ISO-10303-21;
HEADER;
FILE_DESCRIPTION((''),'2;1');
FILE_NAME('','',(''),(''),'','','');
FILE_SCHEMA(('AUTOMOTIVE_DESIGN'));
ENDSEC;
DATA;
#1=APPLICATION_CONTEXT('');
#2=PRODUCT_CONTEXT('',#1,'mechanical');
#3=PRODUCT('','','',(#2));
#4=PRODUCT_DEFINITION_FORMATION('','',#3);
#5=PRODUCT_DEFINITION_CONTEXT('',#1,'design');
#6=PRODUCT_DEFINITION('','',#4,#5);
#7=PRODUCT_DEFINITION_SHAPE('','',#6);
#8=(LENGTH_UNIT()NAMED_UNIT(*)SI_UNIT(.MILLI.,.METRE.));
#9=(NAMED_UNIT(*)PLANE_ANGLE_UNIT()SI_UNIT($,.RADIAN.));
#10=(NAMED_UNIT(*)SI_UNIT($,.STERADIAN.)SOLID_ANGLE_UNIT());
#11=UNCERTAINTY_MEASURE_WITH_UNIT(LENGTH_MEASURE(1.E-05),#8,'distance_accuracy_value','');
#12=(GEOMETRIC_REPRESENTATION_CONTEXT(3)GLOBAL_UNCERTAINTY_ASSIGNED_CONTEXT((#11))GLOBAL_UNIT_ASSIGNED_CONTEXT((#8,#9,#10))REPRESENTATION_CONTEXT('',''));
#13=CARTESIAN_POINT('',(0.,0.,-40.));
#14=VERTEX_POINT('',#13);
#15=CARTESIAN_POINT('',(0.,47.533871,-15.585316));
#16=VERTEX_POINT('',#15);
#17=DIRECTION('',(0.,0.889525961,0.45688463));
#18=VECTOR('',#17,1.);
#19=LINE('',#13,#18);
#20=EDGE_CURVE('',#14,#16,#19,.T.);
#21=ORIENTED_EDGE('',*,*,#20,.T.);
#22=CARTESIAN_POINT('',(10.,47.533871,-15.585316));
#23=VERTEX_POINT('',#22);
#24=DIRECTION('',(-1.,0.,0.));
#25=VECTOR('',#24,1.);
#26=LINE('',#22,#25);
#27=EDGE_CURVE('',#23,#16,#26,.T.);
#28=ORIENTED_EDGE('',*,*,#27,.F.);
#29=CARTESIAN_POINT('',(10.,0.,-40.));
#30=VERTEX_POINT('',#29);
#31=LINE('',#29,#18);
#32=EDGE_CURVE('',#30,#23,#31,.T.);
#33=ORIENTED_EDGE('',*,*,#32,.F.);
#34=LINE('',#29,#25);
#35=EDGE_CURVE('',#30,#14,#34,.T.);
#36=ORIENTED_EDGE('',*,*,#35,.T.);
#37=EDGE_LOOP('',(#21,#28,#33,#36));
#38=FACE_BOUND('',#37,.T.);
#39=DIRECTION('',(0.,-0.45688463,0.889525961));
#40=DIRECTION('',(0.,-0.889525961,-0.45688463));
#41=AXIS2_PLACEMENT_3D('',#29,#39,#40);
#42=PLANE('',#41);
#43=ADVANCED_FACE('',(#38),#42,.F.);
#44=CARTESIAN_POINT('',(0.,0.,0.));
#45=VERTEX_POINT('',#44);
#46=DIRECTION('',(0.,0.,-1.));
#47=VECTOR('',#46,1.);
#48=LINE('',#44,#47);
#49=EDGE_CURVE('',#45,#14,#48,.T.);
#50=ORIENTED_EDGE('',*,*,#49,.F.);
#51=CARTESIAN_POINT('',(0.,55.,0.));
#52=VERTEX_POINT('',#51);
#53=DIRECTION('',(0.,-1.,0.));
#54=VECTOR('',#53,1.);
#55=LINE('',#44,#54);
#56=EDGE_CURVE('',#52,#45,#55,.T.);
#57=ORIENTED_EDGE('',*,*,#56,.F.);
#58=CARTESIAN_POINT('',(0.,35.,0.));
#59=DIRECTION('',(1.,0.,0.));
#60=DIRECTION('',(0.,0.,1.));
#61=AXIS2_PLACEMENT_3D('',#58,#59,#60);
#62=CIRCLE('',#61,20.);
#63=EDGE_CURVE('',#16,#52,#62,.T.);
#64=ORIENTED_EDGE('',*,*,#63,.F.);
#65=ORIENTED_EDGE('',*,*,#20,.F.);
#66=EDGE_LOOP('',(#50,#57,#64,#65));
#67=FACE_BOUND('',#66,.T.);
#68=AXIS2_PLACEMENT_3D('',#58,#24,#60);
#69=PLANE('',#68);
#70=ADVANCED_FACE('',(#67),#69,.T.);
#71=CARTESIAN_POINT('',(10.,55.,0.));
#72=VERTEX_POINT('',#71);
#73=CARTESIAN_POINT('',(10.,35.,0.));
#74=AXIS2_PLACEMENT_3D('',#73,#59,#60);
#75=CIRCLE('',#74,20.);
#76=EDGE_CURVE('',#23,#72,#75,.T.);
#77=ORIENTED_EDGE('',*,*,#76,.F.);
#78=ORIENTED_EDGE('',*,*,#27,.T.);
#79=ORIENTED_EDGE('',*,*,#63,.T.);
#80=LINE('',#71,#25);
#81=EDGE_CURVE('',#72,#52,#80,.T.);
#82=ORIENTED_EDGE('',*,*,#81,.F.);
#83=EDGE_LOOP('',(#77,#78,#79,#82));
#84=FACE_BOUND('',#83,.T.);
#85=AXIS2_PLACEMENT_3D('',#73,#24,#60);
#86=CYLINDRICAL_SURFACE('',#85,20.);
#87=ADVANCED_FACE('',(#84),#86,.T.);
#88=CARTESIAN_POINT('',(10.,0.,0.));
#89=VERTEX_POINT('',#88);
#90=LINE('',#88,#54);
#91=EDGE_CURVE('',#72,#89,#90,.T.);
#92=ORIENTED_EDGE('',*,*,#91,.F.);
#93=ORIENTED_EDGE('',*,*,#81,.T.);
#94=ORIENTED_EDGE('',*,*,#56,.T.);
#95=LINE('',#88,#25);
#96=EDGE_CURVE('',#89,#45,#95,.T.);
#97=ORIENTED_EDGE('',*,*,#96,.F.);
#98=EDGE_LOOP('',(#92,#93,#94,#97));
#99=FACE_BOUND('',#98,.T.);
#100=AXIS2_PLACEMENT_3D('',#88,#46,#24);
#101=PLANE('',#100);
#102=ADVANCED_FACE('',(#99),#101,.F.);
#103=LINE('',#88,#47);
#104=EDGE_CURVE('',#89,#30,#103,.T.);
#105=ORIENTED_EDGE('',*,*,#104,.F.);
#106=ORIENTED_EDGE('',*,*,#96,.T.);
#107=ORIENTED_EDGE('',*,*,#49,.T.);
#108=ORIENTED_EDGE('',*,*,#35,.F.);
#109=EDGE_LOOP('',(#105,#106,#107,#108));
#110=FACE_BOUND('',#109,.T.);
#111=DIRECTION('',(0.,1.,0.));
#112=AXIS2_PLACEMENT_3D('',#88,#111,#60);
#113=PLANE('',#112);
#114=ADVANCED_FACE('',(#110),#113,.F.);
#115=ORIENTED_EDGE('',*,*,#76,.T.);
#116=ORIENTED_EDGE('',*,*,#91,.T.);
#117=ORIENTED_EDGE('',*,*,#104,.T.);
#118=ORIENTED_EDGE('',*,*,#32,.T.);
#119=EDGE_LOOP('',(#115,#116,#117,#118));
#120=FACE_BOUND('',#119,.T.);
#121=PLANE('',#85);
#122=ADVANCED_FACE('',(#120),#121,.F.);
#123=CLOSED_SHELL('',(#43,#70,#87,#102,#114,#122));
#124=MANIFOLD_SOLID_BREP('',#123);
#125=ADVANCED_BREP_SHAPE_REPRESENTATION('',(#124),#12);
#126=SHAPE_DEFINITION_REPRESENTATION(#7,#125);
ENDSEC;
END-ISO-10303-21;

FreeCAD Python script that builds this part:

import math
import FreeCAD as App
import Part
import Sketcher
Q = App.Units.Quantity

doc = App.newDocument("Part")
params = doc.addObject("Spreadsheet::Sheet", "Params")
for row, (alias, value) in enumerate([
    ("sketch1_radius", "20 mm"),
    ("sketch1_width", "55 mm"),
    ("sketch1_height", "40 mm"),
    ("pad1_length", "10 mm"),
], start=1):
    params.set(f"A{row}", alias)
    params.set(f"B{row}", "=" + value)
    params.setAlias(f"B{row}", alias)

body = doc.addObject("PartDesign::Body", "Body")

sketch1 = body.newObject("Sketcher::SketchObject", "Sketch")
sketch1.AttachmentSupport = (doc.getObject("YZ_Plane"), [""])
sketch1.MapMode = "FlatFace"
sketch1.addGeometry(Part.LineSegment(App.Vector(0, 0, 0), App.Vector(0, -40, 0)), False)
sketch1.addGeometry(Part.LineSegment(App.Vector(0, -40, 0), App.Vector(48, -16, 0)), False)
sketch1.addGeometry(Part.ArcOfCircle(Part.Circle(App.Vector(35, 0, 0), App.Vector(0, 0, 1), 20), math.radians(-51), math.radians(0)), False)
sketch1.addGeometry(Part.LineSegment(App.Vector(55, 0, 0), App.Vector(0, 0, 0)), False)
sketch1.addConstraint(Sketcher.Constraint("Coincident", 0, 2, 1, 1))
sketch1.addConstraint(Sketcher.Constraint("Coincident", 1, 2, 2, 1))
sketch1.addConstraint(Sketcher.Constraint("Coincident", 2, 2, 3, 1))
sketch1.addConstraint(Sketcher.Constraint("Coincident", 3, 2, 0, 1))
sketch1.addConstraint(Sketcher.Constraint("Vertical", 0))
sketch1.addConstraint(Sketcher.Constraint("Horizontal", 3))
sketch1.addConstraint(Sketcher.Constraint("Coincident", 3, 2, -1, 1))
sketch1.addConstraint(Sketcher.Constraint("PointOnObject", 2, 3, -1))
sketch1.addConstraint(Sketcher.Constraint("Radius", 2, Q("20 mm")))
sketch1.addConstraint(Sketcher.Constraint("DistanceX", 3, 2, 3, 1, Q("55 mm")))
sketch1.addConstraint(Sketcher.Constraint("DistanceY", 0, 2, 0, 1, Q("40 mm")))
sketch1.addConstraint(Sketcher.Constraint("DistanceX", -1, 1, 1, 2, Q("47.533871 mm")))
sketch1.setExpression("Constraints[8]", "Params.sketch1_radius")
sketch1.setExpression("Constraints[9]", "Params.sketch1_width")
sketch1.setExpression("Constraints[10]", "Params.sketch1_height")
pad1 = body.newObject("PartDesign::Pad", "Pad")
pad1.Profile = sketch1
pad1.setExpression("Length", "Params.pad1_length")

doc.recompute()
